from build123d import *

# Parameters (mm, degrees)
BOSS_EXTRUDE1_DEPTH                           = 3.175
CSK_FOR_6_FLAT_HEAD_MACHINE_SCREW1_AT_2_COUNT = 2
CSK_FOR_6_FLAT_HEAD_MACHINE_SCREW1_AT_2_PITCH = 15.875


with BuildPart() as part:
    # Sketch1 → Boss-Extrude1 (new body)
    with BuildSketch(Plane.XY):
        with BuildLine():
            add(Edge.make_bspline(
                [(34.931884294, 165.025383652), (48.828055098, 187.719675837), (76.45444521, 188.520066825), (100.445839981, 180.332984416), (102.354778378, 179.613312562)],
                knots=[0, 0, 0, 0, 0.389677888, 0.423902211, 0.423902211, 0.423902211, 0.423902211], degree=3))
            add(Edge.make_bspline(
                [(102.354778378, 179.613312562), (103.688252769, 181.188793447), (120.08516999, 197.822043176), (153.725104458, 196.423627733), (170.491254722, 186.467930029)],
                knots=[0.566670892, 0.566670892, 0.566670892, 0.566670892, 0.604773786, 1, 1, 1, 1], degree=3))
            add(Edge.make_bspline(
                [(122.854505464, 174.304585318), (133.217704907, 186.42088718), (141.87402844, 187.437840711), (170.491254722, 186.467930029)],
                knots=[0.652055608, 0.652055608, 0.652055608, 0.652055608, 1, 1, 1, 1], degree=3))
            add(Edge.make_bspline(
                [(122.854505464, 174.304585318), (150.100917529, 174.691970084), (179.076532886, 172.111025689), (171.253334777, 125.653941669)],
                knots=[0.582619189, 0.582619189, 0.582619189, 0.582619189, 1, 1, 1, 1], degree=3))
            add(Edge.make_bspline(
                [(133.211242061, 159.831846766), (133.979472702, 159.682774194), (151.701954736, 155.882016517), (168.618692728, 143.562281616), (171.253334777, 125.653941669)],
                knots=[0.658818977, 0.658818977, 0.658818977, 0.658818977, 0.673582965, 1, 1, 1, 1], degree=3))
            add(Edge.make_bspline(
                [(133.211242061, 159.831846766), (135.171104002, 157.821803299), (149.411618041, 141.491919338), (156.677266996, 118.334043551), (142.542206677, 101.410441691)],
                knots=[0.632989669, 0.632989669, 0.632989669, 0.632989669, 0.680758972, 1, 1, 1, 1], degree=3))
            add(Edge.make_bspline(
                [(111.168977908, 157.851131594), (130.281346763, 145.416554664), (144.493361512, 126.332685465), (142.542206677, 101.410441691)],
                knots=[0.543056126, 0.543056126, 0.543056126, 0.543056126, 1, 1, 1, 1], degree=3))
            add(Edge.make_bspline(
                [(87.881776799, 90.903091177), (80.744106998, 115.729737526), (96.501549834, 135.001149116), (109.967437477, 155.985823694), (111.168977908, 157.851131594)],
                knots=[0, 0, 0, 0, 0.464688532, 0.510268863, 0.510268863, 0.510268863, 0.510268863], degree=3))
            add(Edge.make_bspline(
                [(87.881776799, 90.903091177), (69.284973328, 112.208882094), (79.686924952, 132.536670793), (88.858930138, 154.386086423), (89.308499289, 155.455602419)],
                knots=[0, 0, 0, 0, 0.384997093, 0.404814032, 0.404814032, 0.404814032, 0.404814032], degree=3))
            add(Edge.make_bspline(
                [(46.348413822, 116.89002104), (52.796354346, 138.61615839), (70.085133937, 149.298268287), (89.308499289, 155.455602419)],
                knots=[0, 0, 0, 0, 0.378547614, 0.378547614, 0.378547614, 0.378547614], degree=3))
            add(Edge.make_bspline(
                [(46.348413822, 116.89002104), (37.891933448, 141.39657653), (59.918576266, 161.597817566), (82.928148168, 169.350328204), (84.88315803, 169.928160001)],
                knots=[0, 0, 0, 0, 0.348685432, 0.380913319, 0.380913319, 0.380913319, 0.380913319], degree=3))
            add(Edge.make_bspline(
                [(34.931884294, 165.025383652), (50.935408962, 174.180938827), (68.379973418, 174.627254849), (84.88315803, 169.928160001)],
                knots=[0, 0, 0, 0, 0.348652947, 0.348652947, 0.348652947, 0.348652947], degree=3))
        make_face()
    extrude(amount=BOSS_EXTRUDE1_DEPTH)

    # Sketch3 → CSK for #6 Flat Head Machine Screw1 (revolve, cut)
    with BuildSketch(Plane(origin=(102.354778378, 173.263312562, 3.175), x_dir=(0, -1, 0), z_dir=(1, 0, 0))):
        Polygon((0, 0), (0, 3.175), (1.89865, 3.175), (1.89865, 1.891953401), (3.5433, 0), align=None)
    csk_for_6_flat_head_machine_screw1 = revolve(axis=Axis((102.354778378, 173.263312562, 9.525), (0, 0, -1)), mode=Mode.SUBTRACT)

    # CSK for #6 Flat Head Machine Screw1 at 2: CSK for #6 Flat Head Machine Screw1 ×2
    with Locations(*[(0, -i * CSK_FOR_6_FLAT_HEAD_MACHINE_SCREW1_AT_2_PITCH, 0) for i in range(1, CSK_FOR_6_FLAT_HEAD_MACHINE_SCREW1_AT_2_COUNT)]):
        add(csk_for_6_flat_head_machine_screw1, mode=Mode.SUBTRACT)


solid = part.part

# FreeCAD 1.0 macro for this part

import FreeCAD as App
import Part
import Sketcher
Q = App.Units.Quantity

doc = App.newDocument("Part")
params = doc.addObject("Spreadsheet::Sheet", "Params")
for row, (alias, value) in enumerate([
    ("pad1_length", "0.125 in"),
    ("sketch2_height", "0.125 in"),
    ("groove_angle", "360 deg"),
    ("linearpattern_pitch", "0.625 in"),
], start=1):
    params.set(f"A{row}", alias)
    params.set(f"B{row}", "=" + value)
    params.setAlias(f"B{row}", alias)

body = doc.addObject("PartDesign::Body", "Body")

sketch1 = body.newObject("Sketcher::SketchObject", "Sketch")
sketch1.AttachmentSupport = (doc.getObject("XY_Plane"), [""])
sketch1.MapMode = "FlatFace"
sketch1.addGeometry(Part.BSplineCurve([App.Vector(34.931884, 165.025384, 0), App.Vector(48.828055, 187.719676, 0), App.Vector(76.454445, 188.520067, 0), App.Vector(100.44584, 180.332984, 0), App.Vector(102.354778, 179.613313, 0)], [4, 1, 4], [0, 0.389677888, 0.423902211], False, 3, [1, 1, 1, 1, 1], False), False)
sketch1.addGeometry(Part.BSplineCurve([App.Vector(34.931884, 165.025384, 0), App.Vector(50.935409, 174.180939, 0), App.Vector(68.379973, 174.627255, 0), App.Vector(84.883158, 169.92816, 0)], [4, 4], [0, 0.348652947], False, 3, [1, 1, 1, 1], False), False)
sketch1.addGeometry(Part.BSplineCurve([App.Vector(46.348414, 116.890021, 0), App.Vector(37.891933, 141.396577, 0), App.Vector(59.918576, 161.597818, 0), App.Vector(82.928148, 169.350328, 0), App.Vector(84.883158, 169.92816, 0)], [4, 1, 4], [0, 0.348685432, 0.380913319], False, 3, [1, 1, 1, 1, 1], False), False)
sketch1.addGeometry(Part.BSplineCurve([App.Vector(46.348414, 116.890021, 0), App.Vector(52.796354, 138.616158, 0), App.Vector(70.085134, 149.298268, 0), App.Vector(89.308499, 155.455602, 0)], [4, 4], [0, 0.378547614], False, 3, [1, 1, 1, 1], False), False)
sketch1.addGeometry(Part.BSplineCurve([App.Vector(87.881777, 90.903091, 0), App.Vector(69.284973, 112.208882, 0), App.Vector(79.686925, 132.536671, 0), App.Vector(88.85893, 154.386086, 0), App.Vector(89.308499, 155.455602, 0)], [4, 1, 4], [0, 0.384997093, 0.404814032], False, 3, [1, 1, 1, 1, 1], False), False)
sketch1.addGeometry(Part.BSplineCurve([App.Vector(87.881777, 90.903091, 0), App.Vector(80.744107, 115.729738, 0), App.Vector(96.50155, 135.001149, 0), App.Vector(109.967437, 155.985824, 0), App.Vector(111.168978, 157.851132, 0)], [4, 1, 4], [0, 0.464688532, 0.510268863], False, 3, [1, 1, 1, 1, 1], False), False)
sketch1.addGeometry(Part.BSplineCurve([App.Vector(111.168978, 157.851132, 0), App.Vector(130.281347, 145.416555, 0), App.Vector(144.493362, 126.332685, 0), App.Vector(142.542207, 101.410442, 0)], [4, 4], [0.543056126, 1], False, 3, [1, 1, 1, 1], False), False)
sketch1.addGeometry(Part.BSplineCurve([App.Vector(133.211242, 159.831847, 0), App.Vector(135.171104, 157.821803, 0), App.Vector(149.411618, 141.491919, 0), App.Vector(156.677267, 118.334044, 0), App.Vector(142.542207, 101.410442, 0)], [4, 1, 4], [0.632989669, 0.680758972, 1], False, 3, [1, 1, 1, 1, 1], False), False)
sketch1.addGeometry(Part.BSplineCurve([App.Vector(133.211242, 159.831847, 0), App.Vector(133.979473, 159.682774, 0), App.Vector(151.701955, 155.882017, 0), App.Vector(168.618693, 143.562282, 0), App.Vector(171.253335, 125.653942, 0)], [4, 1, 4], [0.658818977, 0.673582965, 1], False, 3, [1, 1, 1, 1, 1], False), False)
sketch1.addGeometry(Part.BSplineCurve([App.Vector(122.854505, 174.304585, 0), App.Vector(150.100918, 174.69197, 0), App.Vector(179.076533, 172.111026, 0), App.Vector(171.253335, 125.653942, 0)], [4, 4], [0.582619189, 1], False, 3, [1, 1, 1, 1], False), False)
sketch1.addGeometry(Part.BSplineCurve([App.Vector(122.854505, 174.304585, 0), App.Vector(133.217705, 186.420887, 0), App.Vector(141.874028, 187.437841, 0), App.Vector(170.491255, 186.46793, 0)], [4, 4], [0.652055608, 1], False, 3, [1, 1, 1, 1], False), False)
sketch1.addGeometry(Part.BSplineCurve([App.Vector(102.354778, 179.613313, 0), App.Vector(103.688253, 181.188793, 0), App.Vector(120.08517, 197.822043, 0), App.Vector(153.725104, 196.423628, 0), App.Vector(170.491255, 186.46793, 0)], [4, 1, 4], [0.566670892, 0.604773786, 1], False, 3, [1, 1, 1, 1, 1], False), False)
sketch1.addConstraint(Sketcher.Constraint("Block", 0))
sketch1.addConstraint(Sketcher.Constraint("Block", 1))
sketch1.addConstraint(Sketcher.Constraint("Block", 2))
sketch1.addConstraint(Sketcher.Constraint("Block", 3))
sketch1.addConstraint(Sketcher.Constraint("Block", 4))
sketch1.addConstraint(Sketcher.Constraint("Block", 5))
sketch1.addConstraint(Sketcher.Constraint("Block", 6))
sketch1.addConstraint(Sketcher.Constraint("Block", 7))
sketch1.addConstraint(Sketcher.Constraint("Block", 8))
sketch1.addConstraint(Sketcher.Constraint("Block", 9))
sketch1.addConstraint(Sketcher.Constraint("Block", 10))
sketch1.addConstraint(Sketcher.Constraint("Block", 11))
pad1 = body.newObject("PartDesign::Pad", "Pad")
pad1.Profile = sketch1
pad1.setExpression("Length", "Params.pad1_length")

sketch2 = body.newObject("Sketcher::SketchObject", "Sketch001")
sketch2.AttachmentSupport = (doc.getObject("YZ_Plane"), [""])
sketch2.MapMode = "FlatFace"
sketch2.AttachmentOffset = App.Placement(App.Vector(0, 0, 102.354778), App.Rotation())
sketch2.addGeometry(Part.LineSegment(App.Vector(173.263313, 0, 0), App.Vector(173.263313, 3.175, 0)), False)
sketch2.addGeometry(Part.LineSegment(App.Vector(173.263313, 3.175, 0), App.Vector(169.720013, 3.175, 0)), False)
sketch2.addGeometry(Part.LineSegment(App.Vector(169.720013, 3.175, 0), App.Vector(171.364663, 1.283047, 0)), False)
sketch2.addGeometry(Part.LineSegment(App.Vector(171.364663, 1.283047, 0), App.Vector(171.364663, 0, 0)), False)
sketch2.addGeometry(Part.LineSegment(App.Vector(171.364663, 0, 0), App.Vector(173.263313, 0, 0)), False)
sketch2.addGeometry(Part.LineSegment(App.Vector(173.263313, 3.175, 0), App.Vector(173.263313, 0, 0)), True)
sketch2.addConstraint(Sketcher.Constraint("Coincident", 0, 2, 1, 1))
sketch2.addConstraint(Sketcher.Constraint("Coincident", 1, 2, 2, 1))
sketch2.addConstraint(Sketcher.Constraint("Coincident", 2, 2, 3, 1))
sketch2.addConstraint(Sketcher.Constraint("Coincident", 3, 2, 4, 1))
sketch2.addConstraint(Sketcher.Constraint("Coincident", 4, 2, 0, 1))
sketch2.addConstraint(Sketcher.Constraint("Vertical", 0))
sketch2.addConstraint(Sketcher.Constraint("Horizontal", 1))
sketch2.addConstraint(Sketcher.Constraint("Vertical", 3))
sketch2.addConstraint(Sketcher.Constraint("Horizontal", 4))
sketch2.addConstraint(Sketcher.Constraint("Vertical", 5))
sketch2.addConstraint(Sketcher.Constraint("Coincident", 5, 1, 0, 2))
sketch2.addConstraint(Sketcher.Constraint("PointOnObject", 3, 2, -1))
sketch2.addConstraint(Sketcher.Constraint("PointOnObject", 5, 2, -1))
sketch2.addConstraint(Sketcher.Constraint("Angle", 2, Q("-49 deg")))
sketch2.addConstraint(Sketcher.Constraint("DistanceY", 0, 1, 0, 2, Q("0.125 in")))
sketch2.addConstraint(Sketcher.Constraint("DistanceX", 1, 2, 1, 1, Q("0.1395 in")))
sketch2.addConstraint(Sketcher.Constraint("DistanceX", 4, 1, 4, 2, 1.89865))
sketch2.addConstraint(Sketcher.Constraint("DistanceX", -1, 1, 0, 2, 173.263313))
sketch2.setExpression("Constraints[14]", "Params.sketch2_height")
groove = body.newObject("PartDesign::Groove", "Groove")
groove.Profile = sketch2
groove.ReferenceAxis = (sketch2, ["Axis0"])
groove.setExpression("Angle", "Params.groove_angle")
doc.recompute()

linearpattern = body.newObject("PartDesign::LinearPattern", "LinearPattern")
linearpattern.Originals = [groove]
linearpattern.Direction = (doc.getObject("Y_Axis"), [""])
linearpattern.Mode = "offset"
linearpattern.setExpression("Offset", "Params.linearpattern_pitch")
linearpattern.Occurrences = 2
linearpattern.Reversed = True
body.Tip = linearpattern

doc.recompute()
